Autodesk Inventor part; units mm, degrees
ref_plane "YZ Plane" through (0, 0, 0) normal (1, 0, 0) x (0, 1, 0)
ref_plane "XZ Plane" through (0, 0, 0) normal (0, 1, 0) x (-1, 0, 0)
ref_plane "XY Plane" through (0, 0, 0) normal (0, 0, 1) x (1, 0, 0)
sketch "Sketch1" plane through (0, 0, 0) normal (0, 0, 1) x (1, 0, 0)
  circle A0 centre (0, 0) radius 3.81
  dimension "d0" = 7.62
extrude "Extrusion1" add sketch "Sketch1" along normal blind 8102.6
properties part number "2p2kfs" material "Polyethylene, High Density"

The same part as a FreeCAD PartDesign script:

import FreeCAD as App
import Part
import Sketcher
from FreeCAD import Vector
Q = App.Units.Quantity

doc = App.newDocument("Part")
body = doc.addObject("PartDesign::Body", "Body")

sketch1 = body.newObject("Sketcher::SketchObject", "Sketch")
sketch1.AttachmentSupport = (doc.getObject("XY_Plane"), [""])
sketch1.MapMode = "FlatFace"
sketch1.addGeometry(Part.Circle(Vector(0, 0, 0), Vector(0, 0, 1), 3.8), False)
sketch1.addConstraint([
    Sketcher.Constraint("Coincident", 0, 3, -1, 1),
    Sketcher.Constraint("Diameter", 0, Q("0.3 in")),
])
pad1 = body.newObject("PartDesign::Pad", "Pad")
pad1.Profile = sketch1
pad1.Length = Q("319 in")

doc.recompute()
